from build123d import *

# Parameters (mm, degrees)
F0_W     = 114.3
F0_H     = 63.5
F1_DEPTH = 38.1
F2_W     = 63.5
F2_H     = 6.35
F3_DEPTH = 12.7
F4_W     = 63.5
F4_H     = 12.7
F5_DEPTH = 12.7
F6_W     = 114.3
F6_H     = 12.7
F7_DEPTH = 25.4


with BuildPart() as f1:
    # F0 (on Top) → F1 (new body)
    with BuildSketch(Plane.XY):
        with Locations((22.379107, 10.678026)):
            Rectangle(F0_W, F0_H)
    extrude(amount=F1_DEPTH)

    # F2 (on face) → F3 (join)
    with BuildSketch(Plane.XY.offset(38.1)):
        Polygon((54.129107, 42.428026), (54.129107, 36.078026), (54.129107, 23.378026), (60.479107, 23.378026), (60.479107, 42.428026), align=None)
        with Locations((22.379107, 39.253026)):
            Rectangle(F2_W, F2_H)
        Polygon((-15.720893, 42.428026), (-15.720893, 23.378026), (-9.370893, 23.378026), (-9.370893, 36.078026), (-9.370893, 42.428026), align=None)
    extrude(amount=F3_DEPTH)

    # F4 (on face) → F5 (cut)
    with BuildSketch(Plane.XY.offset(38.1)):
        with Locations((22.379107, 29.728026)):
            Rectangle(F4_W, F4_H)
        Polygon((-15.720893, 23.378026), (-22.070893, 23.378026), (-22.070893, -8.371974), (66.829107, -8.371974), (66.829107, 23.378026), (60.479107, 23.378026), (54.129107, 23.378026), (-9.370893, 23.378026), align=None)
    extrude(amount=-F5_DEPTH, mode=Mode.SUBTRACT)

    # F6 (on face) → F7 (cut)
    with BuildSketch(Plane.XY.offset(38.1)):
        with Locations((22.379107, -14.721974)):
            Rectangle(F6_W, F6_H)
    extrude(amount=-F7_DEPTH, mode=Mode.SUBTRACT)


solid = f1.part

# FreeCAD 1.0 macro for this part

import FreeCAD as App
import Part
import Sketcher

V = App.Vector
Q = App.Units.Quantity


def add_polygon(sketch, points):
    """Adds a closed chain of lines whose ends are joined by coincident constraints."""
    first, n = sketch.GeometryCount, len(points)
    for a, b in zip(points, points[1:] + points[:1]):
        sketch.addGeometry(Part.LineSegment(App.Vector(*a, 0), App.Vector(*b, 0)), False)
    for i in range(n):
        sketch.addConstraint(Sketcher.Constraint("Coincident", first + i, 2, first + (i + 1) % n, 1))

doc = App.newDocument("Part")
body = doc.addObject("PartDesign::Body", "Body")

# Sketch on XY plane
sketch1 = doc.addObject("Sketcher::SketchObject", "Sketch")
body.addObject(sketch1)
sketch1.AttachmentSupport = (doc.XY_Plane, [""])
sketch1.MapMode = "FlatFace"
add_polygon(sketch1, [(-35, 42), (-35, -21), (80, -21), (80, 42)])  # lines 0-3
sketch1.addConstraint([
    Sketcher.Constraint("Vertical", 0),
    Sketcher.Constraint("Horizontal", 1),
    Sketcher.Constraint("Vertical", 2),
    Sketcher.Constraint("Horizontal", 3),
    Sketcher.Constraint("DistanceX", 1, 1, 1, 2, Q("4.5 in")),
    Sketcher.Constraint("DistanceY", 0, 2, 0, 1, Q("2.5 in")),
    Sketcher.Constraint("DistanceX", 0, 2, -1, 1, Q("34.770893 mm")),
    Sketcher.Constraint("DistanceY", 0, 2, -1, 1, Q("21.071974 mm")),
])
pad1 = doc.addObject("PartDesign::Pad", "Pad")
body.addObject(pad1)
pad1.Profile = sketch1
pad1.Length = Q("1.5 in")

# Sketch on XY plane
sketch2 = doc.addObject("Sketcher::SketchObject", "Sketch001")
body.addObject(sketch2)
sketch2.AttachmentSupport = (doc.XY_Plane, [""])
sketch2.MapMode = "FlatFace"
sketch2.AttachmentOffset = App.Placement(V(0, 0, 1.5 * 25.4), App.Rotation())
add_polygon(sketch2, [(54, 36), (54, 23), (60, 23), (60, 42), (-16, 42), (-16, 23), (-9, 23), (-9, 36)])  # lines 0-7
sketch2.addConstraint([
    Sketcher.Constraint("Vertical", 0),
    Sketcher.Constraint("Horizontal", 1),
    Sketcher.Constraint("Vertical", 2),
    Sketcher.Constraint("Horizontal", 3),
    Sketcher.Constraint("Vertical", 4),
    Sketcher.Constraint("Horizontal", 5),
    Sketcher.Constraint("Vertical", 6),
    Sketcher.Constraint("Horizontal", 7),
    Sketcher.Constraint("Horizontal", 1, 2, 4, 2),
    Sketcher.Constraint("Equal", 1, 5),
    Sketcher.Constraint("DistanceX", 3, 2, 3, 1, Q("3 in")),
    Sketcher.Constraint("DistanceX", 7, 1, 7, 2, Q("2.5 in")),
    Sketcher.Constraint("DistanceY", 0, 2, 0, 1, Q("0.5 in")),
    Sketcher.Constraint("DistanceY", 2, 1, 2, 2, Q("0.75 in")),
    Sketcher.Constraint("DistanceX", -1, 1, 0, 2, Q("54.129107 mm")),
    Sketcher.Constraint("DistanceY", -1, 1, 0, 2, Q("23.378026 mm")),
])
pad2 = doc.addObject("PartDesign::Pad", "Pad001")
body.addObject(pad2)
pad2.Profile = sketch2
pad2.Length = Q("0.5 in")

# Sketch on XY plane
sketch3 = doc.addObject("Sketcher::SketchObject", "Sketch002")
body.addObject(sketch3)
sketch3.AttachmentSupport = (doc.XY_Plane, [""])
sketch3.MapMode = "FlatFace"
sketch3.AttachmentOffset = App.Placement(V(0, 0, 1.5 * 25.4), App.Rotation())
add_polygon(sketch3, [(-9, 36), (-9, 23), (-22, 23), (-22, -8), (67, -8), (67, 23), (54, 23), (54, 36)])  # lines 0-7
sketch3.addConstraint([
    Sketcher.Constraint("Vertical", 0),
    Sketcher.Constraint("Horizontal", 1),
    Sketcher.Constraint("Vertical", 2),
    Sketcher.Constraint("Horizontal", 3),
    Sketcher.Constraint("Vertical", 4),
    Sketcher.Constraint("Horizontal", 5),
    Sketcher.Constraint("Vertical", 6),
    Sketcher.Constraint("Horizontal", 7),
    Sketcher.Constraint("Horizontal", 1, 2, 4, 2),
    Sketcher.Constraint("Equal", 1, 5),
    Sketcher.Constraint("Equal", 5, 0),
    Sketcher.Constraint("DistanceX", 1, 2, 1, 1, Q("0.5 in")),
    Sketcher.Constraint("DistanceX", 3, 1, 3, 2, Q("3.5 in")),
    Sketcher.Constraint("DistanceY", 2, 2, 2, 1, Q("1.25 in")),
    Sketcher.Constraint("DistanceX", 0, 2, -1, 1, Q("9.370893 mm")),
    Sketcher.Constraint("DistanceY", -1, 1, 0, 2, Q("23.378026 mm")),
])
pocket1 = doc.addObject("PartDesign::Pocket", "Pocket")
body.addObject(pocket1)
pocket1.Profile = sketch3
pocket1.Length = Q("0.5 in")

# Sketch on XY plane
sketch4 = doc.addObject("Sketcher::SketchObject", "Sketch003")
body.addObject(sketch4)
sketch4.AttachmentSupport = (doc.XY_Plane, [""])
sketch4.MapMode = "FlatFace"
sketch4.AttachmentOffset = App.Placement(V(0, 0, 1.5 * 25.4), App.Rotation())
add_polygon(sketch4, [(-35, -8), (-35, -21), (80, -21), (80, -8)])  # lines 0-3
sketch4.addConstraint([
    Sketcher.Constraint("Vertical", 0),
    Sketcher.Constraint("Horizontal", 1),
    Sketcher.Constraint("Vertical", 2),
    Sketcher.Constraint("Horizontal", 3),
    Sketcher.Constraint("DistanceX", 1, 1, 1, 2, Q("4.5 in")),
    Sketcher.Constraint("DistanceY", 0, 2, 0, 1, Q("0.5 in")),
    Sketcher.Constraint("DistanceX", 0, 2, -1, 1, Q("34.770893 mm")),
    Sketcher.Constraint("DistanceY", 0, 2, -1, 1, Q("21.071974 mm")),
])
pocket2 = doc.addObject("PartDesign::Pocket", "Pocket001")
body.addObject(pocket2)
pocket2.Profile = sketch4
pocket2.Length = Q("1 in")

doc.recompute()
